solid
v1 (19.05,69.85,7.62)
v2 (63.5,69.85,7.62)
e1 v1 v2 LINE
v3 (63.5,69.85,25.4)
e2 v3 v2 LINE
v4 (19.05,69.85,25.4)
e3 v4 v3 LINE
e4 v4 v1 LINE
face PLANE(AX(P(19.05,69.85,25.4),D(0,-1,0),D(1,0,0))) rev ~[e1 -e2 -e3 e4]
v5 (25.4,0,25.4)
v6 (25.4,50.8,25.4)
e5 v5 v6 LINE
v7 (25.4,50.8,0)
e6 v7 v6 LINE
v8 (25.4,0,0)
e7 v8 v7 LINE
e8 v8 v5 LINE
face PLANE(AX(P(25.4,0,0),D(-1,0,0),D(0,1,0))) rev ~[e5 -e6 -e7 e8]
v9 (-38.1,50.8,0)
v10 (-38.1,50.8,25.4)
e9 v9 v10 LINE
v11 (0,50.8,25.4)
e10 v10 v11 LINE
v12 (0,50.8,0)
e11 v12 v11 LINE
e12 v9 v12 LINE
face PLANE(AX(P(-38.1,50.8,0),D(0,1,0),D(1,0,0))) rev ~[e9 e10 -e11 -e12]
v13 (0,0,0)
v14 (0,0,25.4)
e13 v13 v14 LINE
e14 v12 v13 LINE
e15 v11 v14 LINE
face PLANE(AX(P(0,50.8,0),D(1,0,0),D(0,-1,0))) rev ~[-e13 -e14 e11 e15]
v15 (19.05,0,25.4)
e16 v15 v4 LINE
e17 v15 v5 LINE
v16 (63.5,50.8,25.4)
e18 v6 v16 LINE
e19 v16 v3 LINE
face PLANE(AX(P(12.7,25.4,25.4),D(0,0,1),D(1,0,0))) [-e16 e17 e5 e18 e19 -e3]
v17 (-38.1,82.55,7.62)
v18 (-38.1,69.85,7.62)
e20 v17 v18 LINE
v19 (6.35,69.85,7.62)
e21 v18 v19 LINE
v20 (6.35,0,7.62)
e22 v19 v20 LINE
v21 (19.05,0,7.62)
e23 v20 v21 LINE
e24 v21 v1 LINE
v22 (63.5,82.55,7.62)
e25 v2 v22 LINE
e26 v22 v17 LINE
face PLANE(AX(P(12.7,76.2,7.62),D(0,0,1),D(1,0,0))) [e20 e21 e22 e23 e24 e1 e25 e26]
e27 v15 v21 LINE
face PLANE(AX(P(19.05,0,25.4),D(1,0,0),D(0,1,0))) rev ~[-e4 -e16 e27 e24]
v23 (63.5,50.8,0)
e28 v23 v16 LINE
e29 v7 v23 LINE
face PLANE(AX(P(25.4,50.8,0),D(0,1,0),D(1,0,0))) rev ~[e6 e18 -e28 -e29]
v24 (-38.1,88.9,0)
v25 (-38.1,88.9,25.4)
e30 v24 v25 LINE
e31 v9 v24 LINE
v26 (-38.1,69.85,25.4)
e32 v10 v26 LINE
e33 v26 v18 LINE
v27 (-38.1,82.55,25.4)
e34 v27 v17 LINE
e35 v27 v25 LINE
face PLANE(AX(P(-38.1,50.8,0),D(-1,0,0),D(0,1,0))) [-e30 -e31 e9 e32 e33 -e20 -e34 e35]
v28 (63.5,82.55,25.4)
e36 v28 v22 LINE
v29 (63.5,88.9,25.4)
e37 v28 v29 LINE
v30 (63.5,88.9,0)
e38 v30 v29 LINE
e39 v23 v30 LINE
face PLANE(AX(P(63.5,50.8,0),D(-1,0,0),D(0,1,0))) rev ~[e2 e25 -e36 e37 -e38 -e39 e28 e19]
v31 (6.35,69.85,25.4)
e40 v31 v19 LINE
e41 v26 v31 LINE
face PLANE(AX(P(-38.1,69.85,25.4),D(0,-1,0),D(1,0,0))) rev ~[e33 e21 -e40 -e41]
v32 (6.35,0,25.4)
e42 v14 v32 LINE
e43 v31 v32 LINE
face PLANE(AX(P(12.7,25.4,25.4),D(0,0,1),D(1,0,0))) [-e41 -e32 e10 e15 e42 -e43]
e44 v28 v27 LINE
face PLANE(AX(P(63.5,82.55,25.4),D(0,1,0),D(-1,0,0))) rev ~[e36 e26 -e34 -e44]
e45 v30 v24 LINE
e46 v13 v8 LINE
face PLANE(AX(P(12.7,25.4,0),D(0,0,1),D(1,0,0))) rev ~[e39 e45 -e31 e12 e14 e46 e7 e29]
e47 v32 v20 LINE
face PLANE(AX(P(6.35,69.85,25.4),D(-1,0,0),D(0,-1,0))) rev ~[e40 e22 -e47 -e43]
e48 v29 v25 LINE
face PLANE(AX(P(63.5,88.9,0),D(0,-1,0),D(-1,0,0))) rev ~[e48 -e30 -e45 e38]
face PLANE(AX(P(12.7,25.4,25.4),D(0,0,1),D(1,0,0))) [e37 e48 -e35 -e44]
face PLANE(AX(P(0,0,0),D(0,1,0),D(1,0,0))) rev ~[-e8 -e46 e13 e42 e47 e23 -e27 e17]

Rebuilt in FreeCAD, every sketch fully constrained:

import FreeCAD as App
import Part
import Sketcher
from FreeCAD import Vector
Q = App.Units.Quantity


def add_polygon(sketch, points):
    """Adds a closed chain of lines whose ends are joined by coincident constraints."""
    first, n = sketch.GeometryCount, len(points)
    for a, b in zip(points, points[1:] + points[:1]):
        sketch.addGeometry(Part.LineSegment(App.Vector(*a, 0), App.Vector(*b, 0)), False)
    for i in range(n):
        sketch.addConstraint(Sketcher.Constraint("Coincident", first + i, 2, first + (i + 1) % n, 1))

doc = App.newDocument("Part")
params = doc.addObject("Spreadsheet::Sheet", "Params")
for row, (alias, value) in enumerate([
    ("sketch1_width", "1 in"),
    ("sketch1_width2", "4 in"),
    ("sketch1_height", "2 in"),
    ("pad1_length", "1 in"),
    ("sketch2_width", "4 in"),
    ("sketch2_width2", "0.5 in"),
    ("sketch2_height", "2.75 in"),
    ("pocket1_length", "0.7 in"),
], start=1):
    params.set(f"A{row}", alias)
    params.set(f"B{row}", "=" + value)
    params.setAlias(f"B{row}", alias)

body = doc.addObject("PartDesign::Body", "Body")

sketch1 = body.newObject("Sketcher::SketchObject", "Sketch")
sketch1.AttachmentSupport = (doc.getObject("XY_Plane"), [""])
sketch1.MapMode = "FlatFace"
add_polygon(sketch1, [(0, 0), (25, 0), (25, 51), (64, 51), (64, 89), (-38, 89), (-38, 51), (0, 51)])
sketch1.addConstraint([
    Sketcher.Constraint("Horizontal", 0),
    Sketcher.Constraint("Vertical", 1),
    Sketcher.Constraint("Horizontal", 2),
    Sketcher.Constraint("Vertical", 3),
    Sketcher.Constraint("Horizontal", 4),
    Sketcher.Constraint("Vertical", 5),
    Sketcher.Constraint("Horizontal", 6),
    Sketcher.Constraint("Vertical", 7),
    Sketcher.Constraint("Coincident", 7, 2, -1, 1),
    Sketcher.Constraint("Horizontal", 2, 2, 5, 2),
    Sketcher.Constraint("Equal", 2, 6),
    Sketcher.Constraint("Equal", 6, 3),
    Sketcher.Constraint("DistanceX", 0, 1, 0, 2, Q("1 in")),
    Sketcher.Constraint("DistanceX", 4, 2, 4, 1, Q("4 in")),
    Sketcher.Constraint("DistanceY", 1, 1, 1, 2, Q("2 in")),
])
sketch1.setExpression("Constraints[20]", "Params.sketch1_width")
sketch1.setExpression("Constraints[21]", "Params.sketch1_width2")
sketch1.setExpression("Constraints[22]", "Params.sketch1_height")
pad1 = body.newObject("PartDesign::Pad", "Pad")
pad1.Profile = sketch1
pad1.setExpression("Length", "Params.pad1_length")

sketch2 = body.newObject("Sketcher::SketchObject", "Sketch001")
sketch2.AttachmentSupport = (doc.getObject("XY_Plane"), [""])
sketch2.MapMode = "FlatFace"
sketch2.AttachmentOffset = App.Placement(Vector(0, 0, 1 * 25.4), App.Rotation())
add_polygon(sketch2, [(-38, 70), (6, 70), (6, 0), (19, 0), (19, 70), (64, 70), (64, 83), (-38, 83)])
sketch2.addConstraint([
    Sketcher.Constraint("Horizontal", 0),
    Sketcher.Constraint("Vertical", 1),
    Sketcher.Constraint("Horizontal", 2),
    Sketcher.Constraint("Vertical", 3),
    Sketcher.Constraint("Horizontal", 4),
    Sketcher.Constraint("Vertical", 5),
    Sketcher.Constraint("Horizontal", 6),
    Sketcher.Constraint("Vertical", 7),
    Sketcher.Constraint("PointOnObject", 1, 2, -1),
    Sketcher.Constraint("Horizontal", 0, 2, 3, 2),
    Sketcher.Constraint("Equal", 0, 4),
    Sketcher.Constraint("Equal", 2, 5),
    Sketcher.Constraint("DistanceX", 6, 2, 6, 1, Q("4 in")),
    Sketcher.Constraint("DistanceX", 2, 1, 2, 2, Q("0.5 in")),
    Sketcher.Constraint("DistanceY", 1, 2, 1, 1, Q("2.75 in")),
    Sketcher.Constraint("DistanceX", -1, 1, 4, 2, Q("2.5 in")),
])
sketch2.setExpression("Constraints[20]", "Params.sketch2_width")
sketch2.setExpression("Constraints[21]", "Params.sketch2_width2")
sketch2.setExpression("Constraints[22]", "Params.sketch2_height")
pocket1 = body.newObject("PartDesign::Pocket", "Pocket")
pocket1.Profile = sketch2
pocket1.setExpression("Length", "Params.pocket1_length")

doc.recompute()
